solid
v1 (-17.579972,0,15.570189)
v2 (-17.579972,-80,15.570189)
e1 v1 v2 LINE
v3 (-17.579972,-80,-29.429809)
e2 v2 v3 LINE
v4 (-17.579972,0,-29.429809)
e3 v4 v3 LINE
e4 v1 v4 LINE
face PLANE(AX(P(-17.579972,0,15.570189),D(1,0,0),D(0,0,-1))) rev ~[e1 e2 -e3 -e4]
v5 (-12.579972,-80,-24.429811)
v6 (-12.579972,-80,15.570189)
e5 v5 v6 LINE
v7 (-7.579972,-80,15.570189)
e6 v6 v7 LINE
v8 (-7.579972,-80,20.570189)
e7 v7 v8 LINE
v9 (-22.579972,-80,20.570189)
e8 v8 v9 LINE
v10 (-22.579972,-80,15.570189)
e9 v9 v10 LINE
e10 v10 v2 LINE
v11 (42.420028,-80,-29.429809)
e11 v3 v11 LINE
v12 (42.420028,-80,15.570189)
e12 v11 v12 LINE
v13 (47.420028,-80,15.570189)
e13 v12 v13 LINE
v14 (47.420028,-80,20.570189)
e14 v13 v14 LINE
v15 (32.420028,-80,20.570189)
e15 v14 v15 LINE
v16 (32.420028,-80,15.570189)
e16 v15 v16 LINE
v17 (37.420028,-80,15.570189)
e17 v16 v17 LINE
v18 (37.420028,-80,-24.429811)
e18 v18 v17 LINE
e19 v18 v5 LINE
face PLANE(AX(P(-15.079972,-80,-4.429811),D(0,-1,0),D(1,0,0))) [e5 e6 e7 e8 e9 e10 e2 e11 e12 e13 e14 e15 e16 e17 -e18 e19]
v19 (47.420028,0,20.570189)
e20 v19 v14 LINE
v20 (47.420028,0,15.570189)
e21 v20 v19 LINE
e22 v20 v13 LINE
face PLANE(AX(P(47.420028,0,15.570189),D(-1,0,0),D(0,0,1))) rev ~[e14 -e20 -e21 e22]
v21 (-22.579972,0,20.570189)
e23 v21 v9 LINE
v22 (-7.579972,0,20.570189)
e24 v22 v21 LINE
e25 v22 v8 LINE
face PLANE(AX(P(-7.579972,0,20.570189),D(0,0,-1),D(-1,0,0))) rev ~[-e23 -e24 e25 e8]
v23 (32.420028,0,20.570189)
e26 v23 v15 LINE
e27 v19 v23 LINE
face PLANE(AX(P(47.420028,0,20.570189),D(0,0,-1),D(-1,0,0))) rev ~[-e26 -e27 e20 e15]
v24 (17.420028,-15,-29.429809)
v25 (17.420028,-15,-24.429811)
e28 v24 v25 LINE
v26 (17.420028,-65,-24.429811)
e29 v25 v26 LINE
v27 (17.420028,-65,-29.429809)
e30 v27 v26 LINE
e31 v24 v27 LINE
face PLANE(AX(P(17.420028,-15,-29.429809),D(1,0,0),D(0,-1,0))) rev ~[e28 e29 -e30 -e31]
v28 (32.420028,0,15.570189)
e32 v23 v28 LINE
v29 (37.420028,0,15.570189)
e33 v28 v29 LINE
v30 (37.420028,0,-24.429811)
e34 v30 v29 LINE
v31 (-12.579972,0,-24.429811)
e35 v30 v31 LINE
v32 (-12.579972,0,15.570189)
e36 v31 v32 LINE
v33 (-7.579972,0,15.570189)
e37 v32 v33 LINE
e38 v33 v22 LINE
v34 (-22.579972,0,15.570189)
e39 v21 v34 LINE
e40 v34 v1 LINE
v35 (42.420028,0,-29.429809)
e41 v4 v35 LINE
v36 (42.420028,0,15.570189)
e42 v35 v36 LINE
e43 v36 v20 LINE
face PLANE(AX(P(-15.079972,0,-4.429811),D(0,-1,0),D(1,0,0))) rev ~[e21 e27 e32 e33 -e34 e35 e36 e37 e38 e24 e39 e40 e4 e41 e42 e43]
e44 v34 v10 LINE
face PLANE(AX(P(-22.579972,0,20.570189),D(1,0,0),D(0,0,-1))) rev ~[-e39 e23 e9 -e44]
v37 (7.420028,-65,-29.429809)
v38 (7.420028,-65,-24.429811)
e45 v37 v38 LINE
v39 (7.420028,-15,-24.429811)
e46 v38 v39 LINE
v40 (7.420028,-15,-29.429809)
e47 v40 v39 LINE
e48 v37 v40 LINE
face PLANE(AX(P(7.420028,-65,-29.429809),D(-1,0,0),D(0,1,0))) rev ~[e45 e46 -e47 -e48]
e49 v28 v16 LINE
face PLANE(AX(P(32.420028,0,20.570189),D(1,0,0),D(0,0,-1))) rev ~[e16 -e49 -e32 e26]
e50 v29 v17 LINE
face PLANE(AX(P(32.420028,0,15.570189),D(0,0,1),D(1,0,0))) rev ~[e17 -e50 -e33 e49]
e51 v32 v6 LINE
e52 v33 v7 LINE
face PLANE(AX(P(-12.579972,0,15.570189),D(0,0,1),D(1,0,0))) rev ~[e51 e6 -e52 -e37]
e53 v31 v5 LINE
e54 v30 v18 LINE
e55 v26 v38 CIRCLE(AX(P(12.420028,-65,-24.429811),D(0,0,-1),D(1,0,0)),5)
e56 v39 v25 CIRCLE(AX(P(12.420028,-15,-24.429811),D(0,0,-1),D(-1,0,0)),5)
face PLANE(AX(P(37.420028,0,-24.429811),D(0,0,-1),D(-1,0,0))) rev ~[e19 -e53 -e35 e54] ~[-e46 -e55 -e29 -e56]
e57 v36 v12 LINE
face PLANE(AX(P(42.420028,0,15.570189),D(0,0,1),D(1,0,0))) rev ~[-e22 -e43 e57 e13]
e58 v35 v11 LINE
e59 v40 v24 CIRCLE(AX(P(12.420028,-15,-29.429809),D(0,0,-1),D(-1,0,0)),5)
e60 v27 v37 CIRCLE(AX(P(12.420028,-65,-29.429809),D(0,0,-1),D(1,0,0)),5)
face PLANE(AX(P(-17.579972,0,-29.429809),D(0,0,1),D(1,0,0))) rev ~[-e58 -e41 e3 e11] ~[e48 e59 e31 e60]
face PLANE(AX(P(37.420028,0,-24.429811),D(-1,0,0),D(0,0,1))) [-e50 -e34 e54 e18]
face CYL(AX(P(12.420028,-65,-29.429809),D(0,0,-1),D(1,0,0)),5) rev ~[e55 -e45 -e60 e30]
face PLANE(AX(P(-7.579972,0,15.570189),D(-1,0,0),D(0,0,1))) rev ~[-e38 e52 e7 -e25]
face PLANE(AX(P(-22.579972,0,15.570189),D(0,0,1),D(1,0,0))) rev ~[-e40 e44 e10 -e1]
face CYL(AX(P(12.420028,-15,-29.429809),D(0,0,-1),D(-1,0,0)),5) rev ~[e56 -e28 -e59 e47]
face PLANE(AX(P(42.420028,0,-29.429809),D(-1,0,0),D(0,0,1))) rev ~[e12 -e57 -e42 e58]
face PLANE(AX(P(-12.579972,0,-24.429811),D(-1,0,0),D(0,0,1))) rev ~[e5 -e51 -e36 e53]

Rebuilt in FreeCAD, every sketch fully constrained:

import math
import FreeCAD as App
import Part
import Sketcher

V = App.Vector
Q = App.Units.Quantity

doc = App.newDocument("Part")
params = doc.addObject("Spreadsheet::Sheet", "Params")
for row, (alias, value) in enumerate([
    ("sketch1_width", "60 mm"),
    ("sketch1_width2", "5 mm"),
    ("sketch1_width3", "15 mm"),
    ("sketch1_height", "40 mm"),
    ("pad1_length", "80 mm"),
    ("sketch2_radius", "5 mm"),
    ("sketch2_height", "50 mm"),
    ("pocket1_length", "25 mm"),
], start=1):
    params.set(f"A{row}", alias)
    params.set(f"B{row}", "=" + value)
    params.setAlias(f"B{row}", alias)

body = doc.addObject("PartDesign::Body", "Body")

# Sketch on XZ plane
sketch1 = doc.addObject("Sketcher::SketchObject", "Sketch")
body.addObject(sketch1)
sketch1.AttachmentSupport = (doc.XZ_Plane, [""])
sketch1.MapMode = "FlatFace"
sketch1.addGeometry([
    Part.LineSegment(V(-18, 16, 0), V(-18, -29, 0)),  # 0
    Part.LineSegment(V(-18, -29, 0), V(42, -29, 0)),  # 1
    Part.LineSegment(V(42, -29, 0), V(42, 16, 0)),  # 2
    Part.LineSegment(V(42, 16, 0), V(47, 16, 0)),  # 3
    Part.LineSegment(V(47, 16, 0), V(47, 21, 0)),  # 4
    Part.LineSegment(V(47, 21, 0), V(32, 21, 0)),  # 5
    Part.LineSegment(V(32, 21, 0), V(32, 16, 0)),  # 6
    Part.LineSegment(V(32, 16, 0), V(37, 16, 0)),  # 7
    Part.LineSegment(V(37, 16, 0), V(37, -24, 0)),  # 8
    Part.LineSegment(V(37, -24, 0), V(-13, -24, 0)),  # 9
    Part.LineSegment(V(-13, -24, 0), V(-13, 16, 0)),  # 10
    Part.LineSegment(V(-13, 16, 0), V(-8, 16, 0)),  # 11
    Part.LineSegment(V(-8, 16, 0), V(-8, 21, 0)),  # 12
    Part.LineSegment(V(-8, 21, 0), V(-23, 21, 0)),  # 13
    Part.LineSegment(V(-23, 21, 0), V(-23, 16, 0)),  # 14
    Part.LineSegment(V(-23, 16, 0), V(-18, 16, 0)),  # 15
], False)
sketch1.addConstraint([
    Sketcher.Constraint("Coincident", 0, 2, 1, 1),
    Sketcher.Constraint("Coincident", 1, 2, 2, 1),
    Sketcher.Constraint("Coincident", 2, 2, 3, 1),
    Sketcher.Constraint("Coincident", 3, 2, 4, 1),
    Sketcher.Constraint("Coincident", 4, 2, 5, 1),
    Sketcher.Constraint("Coincident", 5, 2, 6, 1),
    Sketcher.Constraint("Coincident", 6, 2, 7, 1),
    Sketcher.Constraint("Coincident", 7, 2, 8, 1),
    Sketcher.Constraint("Coincident", 8, 2, 9, 1),
    Sketcher.Constraint("Coincident", 9, 2, 10, 1),
    Sketcher.Constraint("Coincident", 10, 2, 11, 1),
    Sketcher.Constraint("Coincident", 11, 2, 12, 1),
    Sketcher.Constraint("Coincident", 12, 2, 13, 1),
    Sketcher.Constraint("Coincident", 13, 2, 14, 1),
    Sketcher.Constraint("Coincident", 14, 2, 15, 1),
    Sketcher.Constraint("Coincident", 15, 2, 0, 1),
    Sketcher.Constraint("Vertical", 0),
    Sketcher.Constraint("Horizontal", 1),
    Sketcher.Constraint("Vertical", 2),
    Sketcher.Constraint("Horizontal", 3),
    Sketcher.Constraint("Vertical", 4),
    Sketcher.Constraint("Horizontal", 5),
    Sketcher.Constraint("Vertical", 6),
    Sketcher.Constraint("Horizontal", 7),
    Sketcher.Constraint("Vertical", 8),
    Sketcher.Constraint("Horizontal", 9),
    Sketcher.Constraint("Vertical", 10),
    Sketcher.Constraint("Horizontal", 11),
    Sketcher.Constraint("Vertical", 12),
    Sketcher.Constraint("Horizontal", 13),
    Sketcher.Constraint("Vertical", 14),
    Sketcher.Constraint("Horizontal", 15),
    Sketcher.Constraint("Horizontal", 3, 2, 6, 2),
    Sketcher.Constraint("Horizontal", 7, 2, 10, 2),
    Sketcher.Constraint("Horizontal", 5, 2, 12, 2),
    Sketcher.Constraint("Horizontal", 11, 2, 14, 2),
    Sketcher.Constraint("Equal", 3, 7),
    Sketcher.Constraint("Equal", 7, 11),
    Sketcher.Constraint("Equal", 5, 13),
    Sketcher.Constraint("Equal", 11, 15),
    Sketcher.Constraint("Equal", 15, 4),
    Sketcher.Constraint("DistanceX", 1, 1, 1, 2, Q("60 mm")),
    Sketcher.Constraint("DistanceX", 3, 1, 3, 2, Q("5 mm")),
    Sketcher.Constraint("DistanceX", 5, 2, 5, 1, Q("15 mm")),
    Sketcher.Constraint("DistanceY", 8, 2, 8, 1, Q("40 mm")),
    Sketcher.Constraint("DistanceY", 0, 2, 0, 1, Q("44.999998 mm")),
    Sketcher.Constraint("DistanceY", 0, 2, -1, 1, Q("29.429809 mm")),
    Sketcher.Constraint("DistanceX", -1, 1, 1, 2, Q("42.420028 mm")),
])
sketch1.setExpression("Constraints[41]", "Params.sketch1_width")
sketch1.setExpression("Constraints[42]", "Params.sketch1_width2")
sketch1.setExpression("Constraints[43]", "Params.sketch1_width3")
sketch1.setExpression("Constraints[44]", "Params.sketch1_height")
pad1 = doc.addObject("PartDesign::Pad", "Pad")
body.addObject(pad1)
pad1.Profile = sketch1
pad1.setExpression("Length", "Params.pad1_length")

# Sketch on XY plane
sketch2 = doc.addObject("Sketcher::SketchObject", "Sketch001")
body.addObject(sketch2)
sketch2.AttachmentSupport = (doc.XY_Plane, [""])
sketch2.MapMode = "FlatFace"
sketch2.AttachmentOffset = App.Placement(V(0, 0, -29.429809), App.Rotation())
sketch2.addGeometry([
    Part.ArcOfCircle(Part.Circle(V(12, -65, 0), V(0, 0, 1), 5), math.radians(180), math.radians(360)),
    Part.LineSegment(V(7, -65, 0), V(7, -15, 0)),
    Part.ArcOfCircle(Part.Circle(V(12, -15, 0), V(0, 0, 1), 5), math.radians(0), math.radians(180)),
    Part.LineSegment(V(17, -15, 0), V(17, -65, 0)),
], False)
sketch2.addConstraint([
    Sketcher.Constraint("Tangent", 0, 1, 1, 1),
    Sketcher.Constraint("Tangent", 1, 2, 2, 2),
    Sketcher.Constraint("Tangent", 2, 1, 3, 1),
    Sketcher.Constraint("Tangent", 3, 2, 0, 2),
    Sketcher.Constraint("Vertical", 1),
    Sketcher.Constraint("Vertical", 3),
    Sketcher.Constraint("Radius", 0, Q("5 mm")),
    Sketcher.Constraint("DistanceY", 1, 1, 1, 2, Q("50 mm")),
    Sketcher.Constraint("DistanceY", 0, 3, -1, 1, Q("65 mm")),
    Sketcher.Constraint("DistanceX", -1, 1, 0, 1, Q("7.420028 mm")),
])
sketch2.setExpression("Constraints[6]", "Params.sketch2_radius")
sketch2.setExpression("Constraints[7]", "Params.sketch2_height")
pocket1 = doc.addObject("PartDesign::Pocket", "Pocket")
body.addObject(pocket1)
pocket1.Profile = sketch2
pocket1.setExpression("Length", "Params.pocket1_length")
pocket1.Reversed = True

doc.recompute()
